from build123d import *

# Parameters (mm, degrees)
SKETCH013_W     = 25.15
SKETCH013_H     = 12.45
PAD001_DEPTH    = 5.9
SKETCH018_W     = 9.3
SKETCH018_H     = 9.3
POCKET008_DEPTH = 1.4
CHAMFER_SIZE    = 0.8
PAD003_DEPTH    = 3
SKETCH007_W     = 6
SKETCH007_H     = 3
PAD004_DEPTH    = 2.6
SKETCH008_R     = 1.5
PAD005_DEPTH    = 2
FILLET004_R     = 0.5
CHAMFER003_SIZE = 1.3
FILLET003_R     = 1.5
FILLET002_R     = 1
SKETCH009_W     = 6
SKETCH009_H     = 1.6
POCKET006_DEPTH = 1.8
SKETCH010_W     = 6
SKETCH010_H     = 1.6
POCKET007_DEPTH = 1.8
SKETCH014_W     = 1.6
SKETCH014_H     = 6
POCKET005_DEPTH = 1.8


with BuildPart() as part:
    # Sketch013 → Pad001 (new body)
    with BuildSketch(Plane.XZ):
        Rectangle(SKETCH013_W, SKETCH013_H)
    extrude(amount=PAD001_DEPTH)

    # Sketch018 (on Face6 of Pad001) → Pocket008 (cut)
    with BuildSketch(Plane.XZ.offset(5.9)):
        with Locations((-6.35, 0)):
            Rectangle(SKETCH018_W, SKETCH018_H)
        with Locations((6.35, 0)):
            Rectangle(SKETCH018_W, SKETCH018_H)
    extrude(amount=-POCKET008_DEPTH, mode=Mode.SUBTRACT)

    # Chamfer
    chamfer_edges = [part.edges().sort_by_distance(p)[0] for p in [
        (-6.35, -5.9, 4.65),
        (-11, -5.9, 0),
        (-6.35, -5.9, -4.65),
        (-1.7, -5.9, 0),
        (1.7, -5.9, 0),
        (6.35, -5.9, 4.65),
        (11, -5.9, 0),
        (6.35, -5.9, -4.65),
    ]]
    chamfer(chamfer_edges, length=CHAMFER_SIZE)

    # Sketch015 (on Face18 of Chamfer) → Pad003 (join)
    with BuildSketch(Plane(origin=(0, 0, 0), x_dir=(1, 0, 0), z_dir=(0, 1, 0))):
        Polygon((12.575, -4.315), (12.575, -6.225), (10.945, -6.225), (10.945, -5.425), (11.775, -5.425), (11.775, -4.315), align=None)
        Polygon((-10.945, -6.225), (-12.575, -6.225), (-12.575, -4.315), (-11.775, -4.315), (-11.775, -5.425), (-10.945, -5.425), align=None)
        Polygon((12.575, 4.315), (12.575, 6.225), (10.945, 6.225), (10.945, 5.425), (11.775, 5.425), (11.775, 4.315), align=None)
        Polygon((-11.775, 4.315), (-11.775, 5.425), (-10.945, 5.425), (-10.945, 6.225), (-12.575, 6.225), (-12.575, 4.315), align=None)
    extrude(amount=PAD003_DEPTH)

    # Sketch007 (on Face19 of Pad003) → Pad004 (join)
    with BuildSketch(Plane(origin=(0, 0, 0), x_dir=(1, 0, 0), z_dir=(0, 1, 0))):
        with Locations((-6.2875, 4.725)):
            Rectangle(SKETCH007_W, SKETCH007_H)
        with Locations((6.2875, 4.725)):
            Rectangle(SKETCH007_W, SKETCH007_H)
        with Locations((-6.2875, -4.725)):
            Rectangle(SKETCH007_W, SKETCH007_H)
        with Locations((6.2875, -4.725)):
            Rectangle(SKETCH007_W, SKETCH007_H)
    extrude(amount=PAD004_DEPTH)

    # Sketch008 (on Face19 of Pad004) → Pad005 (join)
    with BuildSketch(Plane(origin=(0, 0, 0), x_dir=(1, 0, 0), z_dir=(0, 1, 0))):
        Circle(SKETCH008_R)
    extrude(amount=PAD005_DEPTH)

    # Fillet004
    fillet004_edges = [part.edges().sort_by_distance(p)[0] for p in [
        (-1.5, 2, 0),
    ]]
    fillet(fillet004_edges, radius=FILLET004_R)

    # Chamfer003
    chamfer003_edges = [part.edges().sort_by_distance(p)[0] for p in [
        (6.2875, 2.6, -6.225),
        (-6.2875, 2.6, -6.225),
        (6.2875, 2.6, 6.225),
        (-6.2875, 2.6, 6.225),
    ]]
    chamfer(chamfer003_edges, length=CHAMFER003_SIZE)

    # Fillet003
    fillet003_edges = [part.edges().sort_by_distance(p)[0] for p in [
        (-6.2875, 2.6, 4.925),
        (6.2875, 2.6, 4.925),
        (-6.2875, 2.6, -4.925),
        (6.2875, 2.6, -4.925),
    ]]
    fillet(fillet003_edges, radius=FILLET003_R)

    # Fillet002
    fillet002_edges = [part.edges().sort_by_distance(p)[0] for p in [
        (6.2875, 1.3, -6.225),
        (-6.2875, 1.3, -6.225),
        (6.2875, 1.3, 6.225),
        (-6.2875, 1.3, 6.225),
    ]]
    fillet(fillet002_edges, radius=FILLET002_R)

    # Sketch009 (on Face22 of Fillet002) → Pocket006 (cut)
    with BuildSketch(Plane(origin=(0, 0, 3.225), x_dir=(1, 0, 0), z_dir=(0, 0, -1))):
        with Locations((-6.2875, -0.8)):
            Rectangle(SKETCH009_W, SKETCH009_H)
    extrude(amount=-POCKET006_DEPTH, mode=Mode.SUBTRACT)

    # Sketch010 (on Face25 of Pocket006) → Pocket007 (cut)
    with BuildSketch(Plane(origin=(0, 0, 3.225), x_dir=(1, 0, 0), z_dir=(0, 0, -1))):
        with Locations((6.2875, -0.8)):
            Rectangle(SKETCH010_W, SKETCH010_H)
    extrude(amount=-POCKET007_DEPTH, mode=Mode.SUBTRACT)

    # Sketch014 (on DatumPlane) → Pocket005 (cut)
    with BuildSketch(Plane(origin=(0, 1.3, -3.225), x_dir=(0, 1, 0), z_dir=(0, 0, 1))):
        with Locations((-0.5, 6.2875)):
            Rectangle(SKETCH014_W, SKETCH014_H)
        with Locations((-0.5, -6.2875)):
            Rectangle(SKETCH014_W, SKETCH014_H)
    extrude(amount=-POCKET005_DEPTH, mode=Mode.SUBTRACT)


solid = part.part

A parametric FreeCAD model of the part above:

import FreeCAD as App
import Part
import Sketcher


def edges_at(feature, points):
    """Names of the edges that pass closest to the given points."""
    edges = feature.Shape.Edges
    near = lambda p: min(range(len(edges)), key=lambda i: edges[i].distToShape(Part.Vertex(*p))[0])
    return sorted({f"Edge{near(p) + 1}" for p in points})

doc = App.newDocument("Part")
body = doc.addObject("PartDesign::Body", "Body")

sketch1 = doc.addObject("Sketcher::SketchObject", "Sketch")
body.addObject(sketch1)
sketch1.AttachmentSupport = (doc.XZ_Plane, [""])
sketch1.MapMode = "FlatFace"
sketch1.addGeometry([
    Part.LineSegment(App.Vector(-12.575, 6.225, 0), App.Vector(-12.575, -6.225, 0)),
    Part.LineSegment(App.Vector(-12.575, -6.225, 0), App.Vector(12.575, -6.225, 0)),
    Part.LineSegment(App.Vector(12.575, -6.225, 0), App.Vector(12.575, 6.225, 0)),
    Part.LineSegment(App.Vector(12.575, 6.225, 0), App.Vector(-12.575, 6.225, 0)),
], False)
sketch1.addConstraint([
    Sketcher.Constraint("Coincident", 0, 2, 1, 1),
    Sketcher.Constraint("Coincident", 1, 2, 2, 1),
    Sketcher.Constraint("Coincident", 2, 2, 3, 1),
    Sketcher.Constraint("Coincident", 3, 2, 0, 1),
    Sketcher.Constraint("Vertical", 0),
    Sketcher.Constraint("Horizontal", 1),
    Sketcher.Constraint("Vertical", 2),
    Sketcher.Constraint("Horizontal", 3),
    Sketcher.Constraint("Symmetric", 0, 2, 2, 2, -1, 1),
    Sketcher.Constraint("DistanceX", 1, 1, 1, 2, 25.15),
    Sketcher.Constraint("DistanceY", 0, 2, 0, 1, 12.45),
])
pad1 = doc.addObject("PartDesign::Pad", "Pad")
body.addObject(pad1)
pad1.Profile = sketch1
pad1.Length = 5.9

sketch2 = doc.addObject("Sketcher::SketchObject", "Sketch001")
body.addObject(sketch2)
sketch2.AttachmentSupport = (doc.XZ_Plane, [""])
sketch2.MapMode = "FlatFace"
sketch2.AttachmentOffset = App.Placement(App.Vector(0, 0, 5.9), App.Rotation())
sketch2.addGeometry([
    Part.LineSegment(App.Vector(-11, 4.65, 0), App.Vector(-11, -4.65, 0)),
    Part.LineSegment(App.Vector(-11, -4.65, 0), App.Vector(-1.7, -4.65, 0)),
    Part.LineSegment(App.Vector(-1.7, -4.65, 0), App.Vector(-1.7, 4.65, 0)),
    Part.LineSegment(App.Vector(-1.7, 4.65, 0), App.Vector(-11, 4.65, 0)),
    Part.LineSegment(App.Vector(1.7, 4.65, 0), App.Vector(1.7, -4.65, 0)),
    Part.LineSegment(App.Vector(1.7, -4.65, 0), App.Vector(11, -4.65, 0)),
    Part.LineSegment(App.Vector(11, -4.65, 0), App.Vector(11, 4.65, 0)),
    Part.LineSegment(App.Vector(11, 4.65, 0), App.Vector(1.7, 4.65, 0)),
], False)
sketch2.addConstraint([
    Sketcher.Constraint("Coincident", 0, 2, 1, 1),
    Sketcher.Constraint("Coincident", 1, 2, 2, 1),
    Sketcher.Constraint("Coincident", 2, 2, 3, 1),
    Sketcher.Constraint("Coincident", 3, 2, 0, 1),
    Sketcher.Constraint("Coincident", 4, 2, 5, 1),
    Sketcher.Constraint("Coincident", 5, 2, 6, 1),
    Sketcher.Constraint("Coincident", 6, 2, 7, 1),
    Sketcher.Constraint("Coincident", 7, 2, 4, 1),
    Sketcher.Constraint("Vertical", 0),
    Sketcher.Constraint("Horizontal", 1),
    Sketcher.Constraint("Vertical", 2),
    Sketcher.Constraint("Horizontal", 3),
    Sketcher.Constraint("Vertical", 4),
    Sketcher.Constraint("Horizontal", 5),
    Sketcher.Constraint("Vertical", 6),
    Sketcher.Constraint("Horizontal", 7),
    Sketcher.Constraint("Symmetric", 2, 2, 4, 2, -1, 1),
    Sketcher.Constraint("Symmetric", 0, 2, 6, 2, -1, 1),
    Sketcher.Constraint("Horizontal", 1, 2, 4, 2),
    Sketcher.Constraint("Equal", 7, 0),
    Sketcher.Constraint("DistanceX", 1, 1, 1, 2, 9.3),
    Sketcher.Constraint("DistanceX", 0, 2, -1, 1, 11.0),
])
pocket1 = doc.addObject("PartDesign::Pocket", "Pocket")
body.addObject(pocket1)
pocket1.Profile = sketch2
pocket1.Length = 1.4
doc.recompute()

chamfer = doc.addObject("PartDesign::Chamfer", "Chamfer")
body.addObject(chamfer)
chamfer.Base = (pocket1, edges_at(pocket1, [
    (-6.35, -5.9, 4.65),
    (-11, -5.9, 0),
    (-6.35, -5.9, -4.65),
    (-1.7, -5.9, 0),
    (1.7, -5.9, 0),
    (6.35, -5.9, 4.65),
    (11, -5.9, 0),
    (6.35, -5.9, -4.65),
]))
chamfer.Size = 0.8

sketch3 = doc.addObject("Sketcher::SketchObject", "Sketch002")
body.addObject(sketch3)
sketch3.AttachmentSupport = (doc.XZ_Plane, [""])
sketch3.MapMode = "FlatFace"
sketch3.addGeometry([
    Part.LineSegment(App.Vector(12.575, 6.225, 0), App.Vector(12.575, 4.315, 0)),
    Part.LineSegment(App.Vector(12.575, 4.315, 0), App.Vector(11.775, 4.315, 0)),
    Part.LineSegment(App.Vector(11.775, 4.315, 0), App.Vector(11.775, 5.425, 0)),
    Part.LineSegment(App.Vector(11.775, 5.425, 0), App.Vector(10.945, 5.425, 0)),
    Part.LineSegment(App.Vector(10.945, 5.425, 0), App.Vector(10.945, 6.225, 0)),
    Part.LineSegment(App.Vector(10.945, 6.225, 0), App.Vector(12.575, 6.225, 0)),
    Part.LineSegment(App.Vector(-12.575, 6.225, 0), App.Vector(-10.945, 6.225, 0)),
    Part.LineSegment(App.Vector(-10.945, 6.225, 0), App.Vector(-10.945, 5.425, 0)),
    Part.LineSegment(App.Vector(-10.945, 5.425, 0), App.Vector(-11.775, 5.425, 0)),
    Part.LineSegment(App.Vector(-11.775, 5.425, 0), App.Vector(-11.775, 4.315, 0)),
    Part.LineSegment(App.Vector(-11.775, 4.315, 0), App.Vector(-12.575, 4.315, 0)),
    Part.LineSegment(App.Vector(-12.575, 4.315, 0), App.Vector(-12.575, 6.225, 0)),
    Part.LineSegment(App.Vector(12.575, -4.315, 0), App.Vector(12.575, -6.225, 0)),
    Part.LineSegment(App.Vector(12.575, -6.225, 0), App.Vector(10.945, -6.225, 0)),
    Part.LineSegment(App.Vector(10.945, -6.225, 0), App.Vector(10.945, -5.425, 0)),
    Part.LineSegment(App.Vector(10.945, -5.425, 0), App.Vector(11.775, -5.425, 0)),
    Part.LineSegment(App.Vector(11.775, -5.425, 0), App.Vector(11.775, -4.315, 0)),
    Part.LineSegment(App.Vector(11.775, -4.315, 0), App.Vector(12.575, -4.315, 0)),
    Part.LineSegment(App.Vector(-11.775, -4.315, 0), App.Vector(-11.775, -5.425, 0)),
    Part.LineSegment(App.Vector(-11.775, -5.425, 0), App.Vector(-10.945, -5.425, 0)),
    Part.LineSegment(App.Vector(-10.945, -5.425, 0), App.Vector(-10.945, -6.225, 0)),
    Part.LineSegment(App.Vector(-10.945, -6.225, 0), App.Vector(-12.575, -6.225, 0)),
    Part.LineSegment(App.Vector(-12.575, -6.225, 0), App.Vector(-12.575, -4.315, 0)),
    Part.LineSegment(App.Vector(-12.575, -4.315, 0), App.Vector(-11.775, -4.315, 0)),
], False)
sketch3.addConstraint([
    Sketcher.Constraint("Coincident", 0, 2, 1, 1),
    Sketcher.Constraint("Coincident", 1, 2, 2, 1),
    Sketcher.Constraint("Coincident", 2, 2, 3, 1),
    Sketcher.Constraint("Coincident", 3, 2, 4, 1),
    Sketcher.Constraint("Coincident", 4, 2, 5, 1),
    Sketcher.Constraint("Coincident", 5, 2, 0, 1),
    Sketcher.Constraint("Coincident", 6, 2, 7, 1),
    Sketcher.Constraint("Coincident", 7, 2, 8, 1),
    Sketcher.Constraint("Coincident", 8, 2, 9, 1),
    Sketcher.Constraint("Coincident", 9, 2, 10, 1),
    Sketcher.Constraint("Coincident", 10, 2, 11, 1),
    Sketcher.Constraint("Coincident", 11, 2, 6, 1),
    Sketcher.Constraint("Coincident", 12, 2, 13, 1),
    Sketcher.Constraint("Coincident", 13, 2, 14, 1),
    Sketcher.Constraint("Coincident", 14, 2, 15, 1),
    Sketcher.Constraint("Coincident", 15, 2, 16, 1),
    Sketcher.Constraint("Coincident", 16, 2, 17, 1),
    Sketcher.Constraint("Coincident", 17, 2, 12, 1),
    Sketcher.Constraint("Coincident", 18, 2, 19, 1),
    Sketcher.Constraint("Coincident", 19, 2, 20, 1),
    Sketcher.Constraint("Coincident", 20, 2, 21, 1),
    Sketcher.Constraint("Coincident", 21, 2, 22, 1),
    Sketcher.Constraint("Coincident", 22, 2, 23, 1),
    Sketcher.Constraint("Coincident", 23, 2, 18, 1),
    Sketcher.Constraint("Vertical", 0),
    Sketcher.Constraint("Horizontal", 1),
    Sketcher.Constraint("Vertical", 2),
    Sketcher.Constraint("Horizontal", 3),
    Sketcher.Constraint("Vertical", 4),
    Sketcher.Constraint("Horizontal", 5),
    Sketcher.Constraint("Horizontal", 6),
    Sketcher.Constraint("Vertical", 7),
    Sketcher.Constraint("Horizontal", 8),
    Sketcher.Constraint("Vertical", 9),
    Sketcher.Constraint("Horizontal", 10),
    Sketcher.Constraint("Vertical", 11),
    Sketcher.Constraint("Vertical", 12),
    Sketcher.Constraint("Horizontal", 13),
    Sketcher.Constraint("Vertical", 14),
    Sketcher.Constraint("Horizontal", 15),
    Sketcher.Constraint("Vertical", 16),
    Sketcher.Constraint("Horizontal", 17),
    Sketcher.Constraint("Vertical", 18),
    Sketcher.Constraint("Horizontal", 19),
    Sketcher.Constraint("Vertical", 20),
    Sketcher.Constraint("Horizontal", 21),
    Sketcher.Constraint("Vertical", 22),
    Sketcher.Constraint("Horizontal", 23),
    Sketcher.Constraint("Symmetric", 11, 2, 12, 2, -1, 1),
    Sketcher.Constraint("Symmetric", 7, 2, 14, 2, -1, 1),
    Sketcher.Constraint("Symmetric", 9, 2, 16, 2, -1, 1),
    Sketcher.Constraint("Symmetric", 2, 2, 18, 2, -1, 1),
    Sketcher.Constraint("Symmetric", 4, 2, 20, 2, -1, 1),
    Sketcher.Constraint("Symmetric", 0, 2, 22, 2, -1, 1),
    Sketcher.Constraint("Symmetric", 4, 2, 6, 2, -2),
    Sketcher.Constraint("Symmetric", 2, 2, 8, 2, -2),
    Sketcher.Constraint("Symmetric", 0, 2, 10, 2, -2),
    Sketcher.Constraint("Equal", 23, 4),
    Sketcher.Constraint("DistanceX", 1, 2, 1, 1, 0.8),
    Sketcher.Constraint("DistanceX", 3, 2, 3, 1, 0.83),
    Sketcher.Constraint("DistanceY", 0, 2, 0, 1, 1.91),
    Sketcher.Constraint("DistanceX", 6, 2, 4, 2, 21.89),
    Sketcher.Constraint("DistanceY", 12, 2, 0, 2, 10.54),
])
pad2 = doc.addObject("PartDesign::Pad", "Pad001")
body.addObject(pad2)
pad2.Profile = sketch3
pad2.Length = 3
pad2.Reversed = True

sketch4 = doc.addObject("Sketcher::SketchObject", "Sketch003")
body.addObject(sketch4)
sketch4.AttachmentSupport = (doc.XZ_Plane, [""])
sketch4.MapMode = "FlatFace"
sketch4.addGeometry([
    Part.LineSegment(App.Vector(-9.2875, -6.225, 0), App.Vector(-9.2875, -3.225, 0)),
    Part.LineSegment(App.Vector(-9.2875, -3.225, 0), App.Vector(-3.2875, -3.225, 0)),
    Part.LineSegment(App.Vector(-3.2875, -3.225, 0), App.Vector(-3.2875, -6.225, 0)),
    Part.LineSegment(App.Vector(-3.2875, -6.225, 0), App.Vector(-9.2875, -6.225, 0)),
    Part.LineSegment(App.Vector(3.2875, -6.225, 0), App.Vector(3.2875, -3.225, 0)),
    Part.LineSegment(App.Vector(3.2875, -3.225, 0), App.Vector(9.2875, -3.225, 0)),
    Part.LineSegment(App.Vector(9.2875, -3.225, 0), App.Vector(9.2875, -6.225, 0)),
    Part.LineSegment(App.Vector(9.2875, -6.225, 0), App.Vector(3.2875, -6.225, 0)),
    Part.LineSegment(App.Vector(-9.2875, 3.225, 0), App.Vector(-9.2875, 6.225, 0)),
    Part.LineSegment(App.Vector(-9.2875, 6.225, 0), App.Vector(-3.2875, 6.225, 0)),
    Part.LineSegment(App.Vector(-3.2875, 6.225, 0), App.Vector(-3.2875, 3.225, 0)),
    Part.LineSegment(App.Vector(-3.2875, 3.225, 0), App.Vector(-9.2875, 3.225, 0)),
    Part.LineSegment(App.Vector(3.2875, 3.225, 0), App.Vector(3.2875, 6.225, 0)),
    Part.LineSegment(App.Vector(3.2875, 6.225, 0), App.Vector(9.2875, 6.225, 0)),
    Part.LineSegment(App.Vector(9.2875, 6.225, 0), App.Vector(9.2875, 3.225, 0)),
    Part.LineSegment(App.Vector(9.2875, 3.225, 0), App.Vector(3.2875, 3.225, 0)),
], False)
sketch4.addConstraint([
    Sketcher.Constraint("Coincident", 0, 2, 1, 1),
    Sketcher.Constraint("Coincident", 1, 2, 2, 1),
    Sketcher.Constraint("Coincident", 2, 2, 3, 1),
    Sketcher.Constraint("Coincident", 3, 2, 0, 1),
    Sketcher.Constraint("Coincident", 4, 2, 5, 1),
    Sketcher.Constraint("Coincident", 5, 2, 6, 1),
    Sketcher.Constraint("Coincident", 6, 2, 7, 1),
    Sketcher.Constraint("Coincident", 7, 2, 4, 1),
    Sketcher.Constraint("Coincident", 8, 2, 9, 1),
    Sketcher.Constraint("Coincident", 9, 2, 10, 1),
    Sketcher.Constraint("Coincident", 10, 2, 11, 1),
    Sketcher.Constraint("Coincident", 11, 2, 8, 1),
    Sketcher.Constraint("Coincident", 12, 2, 13, 1),
    Sketcher.Constraint("Coincident", 13, 2, 14, 1),
    Sketcher.Constraint("Coincident", 14, 2, 15, 1),
    Sketcher.Constraint("Coincident", 15, 2, 12, 1),
    Sketcher.Constraint("Vertical", 0),
    Sketcher.Constraint("Horizontal", 1),
    Sketcher.Constraint("Vertical", 2),
    Sketcher.Constraint("Horizontal", 3),
    Sketcher.Constraint("Vertical", 4),
    Sketcher.Constraint("Horizontal", 5),
    Sketcher.Constraint("Vertical", 6),
    Sketcher.Constraint("Horizontal", 7),
    Sketcher.Constraint("Vertical", 8),
    Sketcher.Constraint("Horizontal", 9),
    Sketcher.Constraint("Vertical", 10),
    Sketcher.Constraint("Horizontal", 11),
    Sketcher.Constraint("Vertical", 12),
    Sketcher.Constraint("Horizontal", 13),
    Sketcher.Constraint("Vertical", 14),
    Sketcher.Constraint("Horizontal", 15),
    Sketcher.Constraint("Symmetric", 6, 2, 8, 2, -1, 1),
    Sketcher.Constraint("Symmetric", 4, 2, 10, 2, -1, 1),
    Sketcher.Constraint("Symmetric", 2, 2, 12, 2, -1, 1),
    Sketcher.Constraint("Symmetric", 0, 2, 14, 2, -1, 1),
    Sketcher.Constraint("Symmetric", 1, 2, 4, 2, -2),
    Sketcher.Constraint("Symmetric", 3, 2, 6, 2, -2),
    Sketcher.Constraint("DistanceX", 1, 1, 1, 2, 6.0),
    Sketcher.Constraint("DistanceY", 0, 1, 0, 2, 3.0),
    Sketcher.Constraint("DistanceY", 0, 2, 8, 2, 9.45),
    Sketcher.Constraint("DistanceX", 1, 2, 4, 2, 6.575),
])
pad3 = doc.addObject("PartDesign::Pad", "Pad002")
body.addObject(pad3)
pad3.Profile = sketch4
pad3.Length = 2.6
pad3.Reversed = True

sketch5 = doc.addObject("Sketcher::SketchObject", "Sketch004")
body.addObject(sketch5)
sketch5.AttachmentSupport = (doc.XZ_Plane, [""])
sketch5.MapMode = "FlatFace"
sketch5.addGeometry(Part.Circle(App.Vector(0, 0, 0), App.Vector(0, 0, 1), 1.5), False)
sketch5.addConstraint([
    Sketcher.Constraint("Coincident", 0, 3, -1, 1),
    Sketcher.Constraint("Diameter", 0, 3.0),
])
pad4 = doc.addObject("PartDesign::Pad", "Pad003")
body.addObject(pad4)
pad4.Profile = sketch5
pad4.Length = 2
pad4.Reversed = True
doc.recompute()

fillet = doc.addObject("PartDesign::Fillet", "Fillet")
body.addObject(fillet)
fillet.Base = (pad4, edges_at(pad4, [(-1.5, 2, 0)]))
fillet.Radius = 0.5
doc.recompute()

chamfer2 = doc.addObject("PartDesign::Chamfer", "Chamfer001")
body.addObject(chamfer2)
chamfer2.Base = (fillet, edges_at(fillet, [
    (6.287, 2.6, -6.225),
    (-6.287, 2.6, -6.225),
    (6.287, 2.6, 6.225),
    (-6.287, 2.6, 6.225),
]))
chamfer2.Size = 1.3
doc.recompute()

fillet2 = doc.addObject("PartDesign::Fillet", "Fillet001")
body.addObject(fillet2)
fillet2.Base = (chamfer2, edges_at(chamfer2, [
    (-6.287, 2.6, 4.925),
    (6.287, 2.6, 4.925),
    (-6.287, 2.6, -4.925),
    (6.287, 2.6, -4.925),
]))
fillet2.Radius = 1.5
doc.recompute()

fillet3 = doc.addObject("PartDesign::Fillet", "Fillet002")
body.addObject(fillet3)
fillet3.Base = (fillet2, edges_at(fillet2, [
    (6.287, 1.3, -6.225),
    (-6.287, 1.3, -6.225),
    (6.287, 1.3, 6.225),
    (-6.287, 1.3, 6.225),
]))
fillet3.Radius = 1

sketch6 = doc.addObject("Sketcher::SketchObject", "Sketch005")
body.addObject(sketch6)
sketch6.AttachmentSupport = (doc.XY_Plane, [""])
sketch6.MapMode = "FlatFace"
sketch6.AttachmentOffset = App.Placement(App.Vector(0, 0, 3.225), App.Rotation())
sketch6.addGeometry([
    Part.LineSegment(App.Vector(-9.2875, 0, 0), App.Vector(-9.2875, 1.6, 0)),
    Part.LineSegment(App.Vector(-9.2875, 1.6, 0), App.Vector(-3.2875, 1.6, 0)),
    Part.LineSegment(App.Vector(-3.2875, 1.6, 0), App.Vector(-3.2875, 0, 0)),
    Part.LineSegment(App.Vector(-3.2875, 0, 0), App.Vector(-9.2875, 0, 0)),
], False)
sketch6.addConstraint([
    Sketcher.Constraint("Coincident", 0, 2, 1, 1),
    Sketcher.Constraint("Coincident", 1, 2, 2, 1),
    Sketcher.Constraint("Coincident", 2, 2, 3, 1),
    Sketcher.Constraint("Coincident", 3, 2, 0, 1),
    Sketcher.Constraint("Vertical", 0),
    Sketcher.Constraint("Horizontal", 1),
    Sketcher.Constraint("Vertical", 2),
    Sketcher.Constraint("Horizontal", 3),
    Sketcher.Constraint("PointOnObject", 2, 2, -1),
    Sketcher.Constraint("DistanceX", 1, 1, 1, 2, 6.0),
    Sketcher.Constraint("DistanceY", 0, 1, 0, 2, 1.6),
    Sketcher.Constraint("DistanceX", 0, 2, -1, 1, 9.2875),
])
pocket2 = doc.addObject("PartDesign::Pocket", "Pocket001")
body.addObject(pocket2)
pocket2.Profile = sketch6
pocket2.Length = 1.8
pocket2.Reversed = True

sketch7 = doc.addObject("Sketcher::SketchObject", "Sketch006")
body.addObject(sketch7)
sketch7.AttachmentSupport = (doc.XY_Plane, [""])
sketch7.MapMode = "FlatFace"
sketch7.AttachmentOffset = App.Placement(App.Vector(0, 0, 3.225), App.Rotation())
sketch7.addGeometry([
    Part.LineSegment(App.Vector(3.2875, 0, 0), App.Vector(3.2875, 1.6, 0)),
    Part.LineSegment(App.Vector(3.2875, 1.6, 0), App.Vector(9.2875, 1.6, 0)),
    Part.LineSegment(App.Vector(9.2875, 1.6, 0), App.Vector(9.2875, 0, 0)),
    Part.LineSegment(App.Vector(9.2875, 0, 0), App.Vector(3.2875, 0, 0)),
], False)
sketch7.addConstraint([
    Sketcher.Constraint("Coincident", 0, 2, 1, 1),
    Sketcher.Constraint("Coincident", 1, 2, 2, 1),
    Sketcher.Constraint("Coincident", 2, 2, 3, 1),
    Sketcher.Constraint("Coincident", 3, 2, 0, 1),
    Sketcher.Constraint("Vertical", 0),
    Sketcher.Constraint("Horizontal", 1),
    Sketcher.Constraint("Vertical", 2),
    Sketcher.Constraint("Horizontal", 3),
    Sketcher.Constraint("PointOnObject", 2, 2, -1),
    Sketcher.Constraint("DistanceX", 1, 1, 1, 2, 6.0),
    Sketcher.Constraint("DistanceY", 0, 1, 0, 2, 1.6),
    Sketcher.Constraint("DistanceX", -1, 1, 0, 2, 3.2875),
])
pocket3 = doc.addObject("PartDesign::Pocket", "Pocket002")
body.addObject(pocket3)
pocket3.Profile = sketch7
pocket3.Length = 1.8
pocket3.Reversed = True

sketch8 = doc.addObject("Sketcher::SketchObject", "Sketch007")
body.addObject(sketch8)
sketch8.AttachmentSupport = (doc.XY_Plane, [""])
sketch8.MapMode = "FlatFace"
sketch8.AttachmentOffset = App.Placement(App.Vector(0, 0, -3.225), App.Rotation())
sketch8.addGeometry([
    Part.LineSegment(App.Vector(-9.2875, 0, 0), App.Vector(-3.2875, 0, 0)),
    Part.LineSegment(App.Vector(-3.2875, 0, 0), App.Vector(-3.2875, 1.6, 0)),
    Part.LineSegment(App.Vector(-3.2875, 1.6, 0), App.Vector(-9.2875, 1.6, 0)),
    Part.LineSegment(App.Vector(-9.2875, 1.6, 0), App.Vector(-9.2875, 0, 0)),
    Part.LineSegment(App.Vector(3.2875, 0, 0), App.Vector(9.2875, 0, 0)),
    Part.LineSegment(App.Vector(9.2875, 0, 0), App.Vector(9.2875, 1.6, 0)),
    Part.LineSegment(App.Vector(9.2875, 1.6, 0), App.Vector(3.2875, 1.6, 0)),
    Part.LineSegment(App.Vector(3.2875, 1.6, 0), App.Vector(3.2875, 0, 0)),
], False)
sketch8.addConstraint([
    Sketcher.Constraint("Coincident", 0, 2, 1, 1),
    Sketcher.Constraint("Coincident", 1, 2, 2, 1),
    Sketcher.Constraint("Coincident", 2, 2, 3, 1),
    Sketcher.Constraint("Coincident", 3, 2, 0, 1),
    Sketcher.Constraint("Coincident", 4, 2, 5, 1),
    Sketcher.Constraint("Coincident", 5, 2, 6, 1),
    Sketcher.Constraint("Coincident", 6, 2, 7, 1),
    Sketcher.Constraint("Coincident", 7, 2, 4, 1),
    Sketcher.Constraint("Horizontal", 0),
    Sketcher.Constraint("Vertical", 1),
    Sketcher.Constraint("Horizontal", 2),
    Sketcher.Constraint("Vertical", 3),
    Sketcher.Constraint("Horizontal", 4),
    Sketcher.Constraint("Vertical", 5),
    Sketcher.Constraint("Horizontal", 6),
    Sketcher.Constraint("Vertical", 7),
    Sketcher.Constraint("Symmetric", 3, 2, 4, 2, -1, 1),
    Sketcher.Constraint("Symmetric", 1, 2, 6, 2, -2),
    Sketcher.Constraint("PointOnObject", 0, 2, -1),
    Sketcher.Constraint("DistanceX", 0, 1, 0, 2, 6.0),
    Sketcher.Constraint("DistanceY", 1, 1, 1, 2, 1.6),
    Sketcher.Constraint("DistanceX", 0, 2, 4, 2, 12.575),
])
pocket4 = doc.addObject("PartDesign::Pocket", "Pocket003")
body.addObject(pocket4)
pocket4.Profile = sketch8
pocket4.Length = 1.8

doc.recompute()
